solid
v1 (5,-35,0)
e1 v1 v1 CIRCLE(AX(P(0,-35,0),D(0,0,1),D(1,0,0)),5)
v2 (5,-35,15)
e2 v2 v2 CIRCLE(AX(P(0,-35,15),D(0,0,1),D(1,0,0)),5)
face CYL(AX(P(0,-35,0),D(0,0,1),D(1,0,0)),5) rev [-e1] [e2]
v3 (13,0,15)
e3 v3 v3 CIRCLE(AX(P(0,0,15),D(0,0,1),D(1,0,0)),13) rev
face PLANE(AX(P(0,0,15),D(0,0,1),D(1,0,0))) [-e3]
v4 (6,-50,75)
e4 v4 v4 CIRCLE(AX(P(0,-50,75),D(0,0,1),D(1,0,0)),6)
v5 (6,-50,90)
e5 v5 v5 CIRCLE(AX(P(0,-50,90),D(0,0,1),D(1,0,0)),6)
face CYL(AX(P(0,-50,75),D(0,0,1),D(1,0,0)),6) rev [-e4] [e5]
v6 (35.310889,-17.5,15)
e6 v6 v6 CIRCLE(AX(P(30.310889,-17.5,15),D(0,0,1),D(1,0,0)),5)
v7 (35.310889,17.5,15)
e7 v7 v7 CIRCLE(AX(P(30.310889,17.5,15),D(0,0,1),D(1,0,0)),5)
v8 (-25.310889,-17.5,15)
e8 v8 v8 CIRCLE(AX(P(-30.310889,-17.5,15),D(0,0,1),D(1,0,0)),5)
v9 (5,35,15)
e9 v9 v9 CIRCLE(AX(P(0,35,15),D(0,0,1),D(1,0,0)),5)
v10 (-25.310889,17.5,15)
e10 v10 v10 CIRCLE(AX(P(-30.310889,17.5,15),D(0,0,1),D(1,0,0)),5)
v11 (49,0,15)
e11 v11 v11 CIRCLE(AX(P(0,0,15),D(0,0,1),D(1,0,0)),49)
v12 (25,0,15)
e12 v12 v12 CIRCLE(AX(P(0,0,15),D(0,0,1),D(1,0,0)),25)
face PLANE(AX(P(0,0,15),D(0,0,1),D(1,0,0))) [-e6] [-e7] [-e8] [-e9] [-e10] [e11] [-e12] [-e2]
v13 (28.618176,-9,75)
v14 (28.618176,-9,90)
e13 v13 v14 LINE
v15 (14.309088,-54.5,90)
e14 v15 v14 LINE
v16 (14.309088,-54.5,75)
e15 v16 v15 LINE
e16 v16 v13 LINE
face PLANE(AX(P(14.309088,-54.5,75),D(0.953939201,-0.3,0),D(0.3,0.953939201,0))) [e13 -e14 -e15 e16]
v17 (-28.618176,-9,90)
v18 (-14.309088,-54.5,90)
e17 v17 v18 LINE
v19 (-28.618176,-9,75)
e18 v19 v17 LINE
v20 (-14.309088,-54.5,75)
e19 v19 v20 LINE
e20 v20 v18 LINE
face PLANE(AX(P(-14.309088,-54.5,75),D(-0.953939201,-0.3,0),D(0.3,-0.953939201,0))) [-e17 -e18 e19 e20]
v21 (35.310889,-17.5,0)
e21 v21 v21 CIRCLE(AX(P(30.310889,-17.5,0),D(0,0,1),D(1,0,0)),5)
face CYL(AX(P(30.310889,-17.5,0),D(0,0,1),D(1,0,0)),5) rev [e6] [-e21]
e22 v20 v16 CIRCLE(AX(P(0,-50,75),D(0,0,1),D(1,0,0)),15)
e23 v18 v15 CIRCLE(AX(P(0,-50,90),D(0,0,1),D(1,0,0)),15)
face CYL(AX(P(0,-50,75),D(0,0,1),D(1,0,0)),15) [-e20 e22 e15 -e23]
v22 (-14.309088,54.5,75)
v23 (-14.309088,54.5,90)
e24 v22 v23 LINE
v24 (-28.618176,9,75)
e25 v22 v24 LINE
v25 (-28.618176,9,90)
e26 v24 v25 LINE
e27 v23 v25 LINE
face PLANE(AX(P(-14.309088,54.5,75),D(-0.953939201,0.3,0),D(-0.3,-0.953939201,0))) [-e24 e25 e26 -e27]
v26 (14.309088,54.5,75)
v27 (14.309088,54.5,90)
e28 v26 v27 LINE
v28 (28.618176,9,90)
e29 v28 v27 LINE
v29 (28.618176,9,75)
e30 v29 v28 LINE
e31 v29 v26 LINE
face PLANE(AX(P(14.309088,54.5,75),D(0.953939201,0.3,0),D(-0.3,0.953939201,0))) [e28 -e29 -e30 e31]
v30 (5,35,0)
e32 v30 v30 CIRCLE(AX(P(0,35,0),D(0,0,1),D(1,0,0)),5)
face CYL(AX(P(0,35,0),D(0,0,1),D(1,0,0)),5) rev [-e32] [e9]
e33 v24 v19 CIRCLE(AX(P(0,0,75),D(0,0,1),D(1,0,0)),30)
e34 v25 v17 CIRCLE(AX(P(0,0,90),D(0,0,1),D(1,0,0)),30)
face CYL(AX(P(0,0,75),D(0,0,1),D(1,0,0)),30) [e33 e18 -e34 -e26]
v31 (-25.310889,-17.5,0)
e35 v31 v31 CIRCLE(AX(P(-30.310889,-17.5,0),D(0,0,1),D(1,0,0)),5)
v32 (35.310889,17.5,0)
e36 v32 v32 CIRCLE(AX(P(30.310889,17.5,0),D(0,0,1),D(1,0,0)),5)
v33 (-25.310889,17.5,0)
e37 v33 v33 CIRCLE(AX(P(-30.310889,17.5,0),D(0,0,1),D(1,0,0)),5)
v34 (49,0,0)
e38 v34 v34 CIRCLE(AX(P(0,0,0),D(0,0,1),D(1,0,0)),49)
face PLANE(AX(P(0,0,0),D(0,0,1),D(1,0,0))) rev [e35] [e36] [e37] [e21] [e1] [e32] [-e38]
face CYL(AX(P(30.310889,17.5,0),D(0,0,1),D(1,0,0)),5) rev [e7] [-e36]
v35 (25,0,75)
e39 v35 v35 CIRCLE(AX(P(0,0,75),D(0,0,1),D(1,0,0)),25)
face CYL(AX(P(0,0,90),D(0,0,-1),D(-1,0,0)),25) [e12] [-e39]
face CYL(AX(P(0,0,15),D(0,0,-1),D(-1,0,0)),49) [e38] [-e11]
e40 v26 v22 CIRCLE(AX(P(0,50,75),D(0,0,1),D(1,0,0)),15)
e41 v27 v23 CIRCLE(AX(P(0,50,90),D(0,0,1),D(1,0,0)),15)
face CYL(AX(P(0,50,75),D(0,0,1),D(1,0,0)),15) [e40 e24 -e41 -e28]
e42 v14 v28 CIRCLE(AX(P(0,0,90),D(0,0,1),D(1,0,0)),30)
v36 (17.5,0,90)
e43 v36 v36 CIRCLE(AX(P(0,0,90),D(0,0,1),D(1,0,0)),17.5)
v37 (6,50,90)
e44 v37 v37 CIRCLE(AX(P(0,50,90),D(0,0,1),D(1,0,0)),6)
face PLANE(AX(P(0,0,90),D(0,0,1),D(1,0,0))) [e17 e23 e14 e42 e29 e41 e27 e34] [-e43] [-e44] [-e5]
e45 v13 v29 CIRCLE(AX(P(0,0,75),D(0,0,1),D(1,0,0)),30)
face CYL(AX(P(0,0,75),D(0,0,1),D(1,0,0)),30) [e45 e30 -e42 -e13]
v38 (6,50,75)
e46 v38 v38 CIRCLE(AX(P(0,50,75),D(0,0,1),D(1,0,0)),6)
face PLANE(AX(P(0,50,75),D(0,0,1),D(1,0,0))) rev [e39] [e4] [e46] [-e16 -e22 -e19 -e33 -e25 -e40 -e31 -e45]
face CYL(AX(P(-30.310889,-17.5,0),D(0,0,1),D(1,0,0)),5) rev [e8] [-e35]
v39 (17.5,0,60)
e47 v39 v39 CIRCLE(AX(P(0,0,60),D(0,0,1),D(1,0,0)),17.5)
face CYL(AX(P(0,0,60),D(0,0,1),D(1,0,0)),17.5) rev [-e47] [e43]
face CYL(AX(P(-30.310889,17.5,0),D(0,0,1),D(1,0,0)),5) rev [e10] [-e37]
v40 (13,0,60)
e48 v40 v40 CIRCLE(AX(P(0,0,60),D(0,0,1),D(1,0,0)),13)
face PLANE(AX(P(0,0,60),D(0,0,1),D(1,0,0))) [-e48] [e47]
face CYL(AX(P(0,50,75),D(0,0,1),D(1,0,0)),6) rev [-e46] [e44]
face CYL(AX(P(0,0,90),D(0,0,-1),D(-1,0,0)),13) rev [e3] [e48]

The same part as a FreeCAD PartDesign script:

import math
import FreeCAD as App
import Part
import Sketcher
from FreeCAD import Vector

doc = App.newDocument("Part")
body = doc.addObject("PartDesign::Body", "Body")

sketch1 = body.newObject("Sketcher::SketchObject", "Sketch")
sketch1.AttachmentSupport = (doc.getObject("XY_Plane"), [""])
sketch1.MapMode = "FlatFace"
sketch1.addGeometry(Part.Circle(Vector(0, 0, 0), Vector(0, 0, 1), 49), False)
sketch1.addConstraint([
    Sketcher.Constraint("Coincident", 0, 3, -1, 1),
    Sketcher.Constraint("Diameter", 0, 98.0),
])
pad1 = body.newObject("PartDesign::Pad", "Pad")
pad1.Profile = sketch1
pad1.Length = 15

sketch2 = body.newObject("Sketcher::SketchObject", "Sketch001")
sketch2.AttachmentSupport = (doc.getObject("XY_Plane"), [""])
sketch2.MapMode = "FlatFace"
sketch2.AttachmentOffset = App.Placement(Vector(0, 0, 15), App.Rotation())
sketch2.addGeometry([
    Part.Circle(Vector(0, 35, 0), Vector(0, 0, 1), 5),
    Part.Circle(Vector(30, 18, 0), Vector(0, 0, 1), 5),
    Part.Circle(Vector(30, -18, 0), Vector(0, 0, 1), 5),
    Part.Circle(Vector(0, -35, 0), Vector(0, 0, 1), 5),
    Part.Circle(Vector(-30, -18, 0), Vector(0, 0, 1), 5),
    Part.Circle(Vector(-30, 18, 0), Vector(0, 0, 1), 5),
], False)
sketch2.addConstraint([
    Sketcher.Constraint("Equal", 0, 1),
    Sketcher.Constraint("Equal", 1, 2),
    Sketcher.Constraint("Equal", 2, 3),
    Sketcher.Constraint("Equal", 3, 4),
    Sketcher.Constraint("Equal", 4, 5),
    Sketcher.Constraint("Symmetric", 0, 3, 3, 3, -1, 1),
    Sketcher.Constraint("Symmetric", 1, 3, 4, 3, -1, 1),
    Sketcher.Constraint("Symmetric", 2, 3, 5, 3, -1, 1),
    Sketcher.Constraint("Symmetric", 2, 3, 4, 3, -2),
    Sketcher.Constraint("PointOnObject", 0, 3, -2),
    Sketcher.Constraint("Diameter", 0, 10.0),
    Sketcher.Constraint("DistanceY", -1, 1, 0, 3, 35.0),
    Sketcher.Constraint("DistanceY", 2, 3, 1, 3, 35.0),
    Sketcher.Constraint("DistanceX", -1, 1, 1, 3, 30.310889),
])
pocket1 = body.newObject("PartDesign::Pocket", "Pocket")
pocket1.Profile = sketch2
pocket1.Type = "ThroughAll"

sketch3 = body.newObject("Sketcher::SketchObject", "Sketch002")
sketch3.AttachmentSupport = (doc.getObject("XY_Plane"), [""])
sketch3.MapMode = "FlatFace"
sketch3.AttachmentOffset = App.Placement(Vector(0, 0, 15), App.Rotation())
sketch3.addGeometry([
    Part.Circle(Vector(0, 0, 0), Vector(0, 0, 1), 25),
    Part.Circle(Vector(0, 0, 0), Vector(0, 0, 1), 13),
], False)
sketch3.addConstraint([
    Sketcher.Constraint("Coincident", 0, 3, -1, 1),
    Sketcher.Constraint("Coincident", 1, 3, -1, 1),
    Sketcher.Constraint("Diameter", 0, 50.0),
    Sketcher.Constraint("Diameter", 1, 26.0),
])
pad2 = body.newObject("PartDesign::Pad", "Pad001")
pad2.Profile = sketch3
pad2.Length = 75

sketch4 = body.newObject("Sketcher::SketchObject", "Sketch003")
sketch4.AttachmentSupport = (doc.getObject("XY_Plane"), [""])
sketch4.MapMode = "FlatFace"
sketch4.AttachmentOffset = App.Placement(Vector(0, 0, 90), App.Rotation())
sketch4.addGeometry([
    Part.LineSegment(Vector(29, 9, 0), Vector(14, 54, 0)),
    Part.ArcOfCircle(Part.Circle(Vector(0, 50, 0), Vector(0, 0, 1), 15), math.radians(17), math.radians(163)),
    Part.LineSegment(Vector(-14, 54, 0), Vector(-29, 9, 0)),
    Part.ArcOfCircle(Part.Circle(Vector(0, 0, 0), Vector(0, 0, 1), 30), math.radians(163), math.radians(197)),
    Part.LineSegment(Vector(-29, -9, 0), Vector(-14, -54, 0)),
    Part.ArcOfCircle(Part.Circle(Vector(0, -50, 0), Vector(0, 0, 1), 15), math.radians(-163), math.radians(-17)),
    Part.LineSegment(Vector(14, -54, 0), Vector(29, -9, 0)),
    Part.ArcOfCircle(Part.Circle(Vector(0, 0, 0), Vector(0, 0, 1), 30), math.radians(-17), math.radians(17)),
    Part.Circle(Vector(0, -50, 0), Vector(0, 0, 1), 6),
    Part.Circle(Vector(0, 50, 0), Vector(0, 0, 1), 6),
], False)
sketch4.addConstraint([
    Sketcher.Constraint("Tangent", 0, 2, 1, 1),
    Sketcher.Constraint("Tangent", 1, 2, 2, 1),
    Sketcher.Constraint("Tangent", 2, 2, 3, 1),
    Sketcher.Constraint("Tangent", 3, 2, 4, 1),
    Sketcher.Constraint("Tangent", 4, 2, 5, 1),
    Sketcher.Constraint("Tangent", 5, 2, 6, 1),
    Sketcher.Constraint("Tangent", 6, 2, 7, 1),
    Sketcher.Constraint("Tangent", 7, 2, 0, 1),
    Sketcher.Constraint("Coincident", 3, 3, -1, 1),
    Sketcher.Constraint("Coincident", 7, 3, -1, 1),
    Sketcher.Constraint("Coincident", 8, 3, 5, 3),
    Sketcher.Constraint("Coincident", 9, 3, 1, 3),
    Sketcher.Constraint("Equal", 1, 5),
    Sketcher.Constraint("Equal", 3, 7),
    Sketcher.Constraint("Equal", 8, 9),
    Sketcher.Constraint("Symmetric", 1, 3, 5, 3, -1, 1),
    Sketcher.Constraint("PointOnObject", 1, 3, -2),
    Sketcher.Constraint("Diameter", 8, 12.0),
    Sketcher.Constraint("Radius", 1, 15.0),
    Sketcher.Constraint("Radius", 3, 30.0),
    Sketcher.Constraint("DistanceY", -1, 1, 1, 3, 50.0),
])
pad3 = body.newObject("PartDesign::Pad", "Pad002")
pad3.Profile = sketch4
pad3.Length = 15
pad3.Reversed = True

sketch5 = body.newObject("Sketcher::SketchObject", "Sketch004")
sketch5.AttachmentSupport = (doc.getObject("XY_Plane"), [""])
sketch5.MapMode = "FlatFace"
sketch5.AttachmentOffset = App.Placement(Vector(0, 0, 90), App.Rotation())
sketch5.addGeometry(Part.Circle(Vector(0, 0, 0), Vector(0, 0, 1), 18), False)
sketch5.addConstraint([
    Sketcher.Constraint("Coincident", 0, 3, -1, 1),
    Sketcher.Constraint("Diameter", 0, 35.0),
])
pocket2 = body.newObject("PartDesign::Pocket", "Pocket001")
pocket2.Profile = sketch5
pocket2.Length = 30

doc.recompute()
